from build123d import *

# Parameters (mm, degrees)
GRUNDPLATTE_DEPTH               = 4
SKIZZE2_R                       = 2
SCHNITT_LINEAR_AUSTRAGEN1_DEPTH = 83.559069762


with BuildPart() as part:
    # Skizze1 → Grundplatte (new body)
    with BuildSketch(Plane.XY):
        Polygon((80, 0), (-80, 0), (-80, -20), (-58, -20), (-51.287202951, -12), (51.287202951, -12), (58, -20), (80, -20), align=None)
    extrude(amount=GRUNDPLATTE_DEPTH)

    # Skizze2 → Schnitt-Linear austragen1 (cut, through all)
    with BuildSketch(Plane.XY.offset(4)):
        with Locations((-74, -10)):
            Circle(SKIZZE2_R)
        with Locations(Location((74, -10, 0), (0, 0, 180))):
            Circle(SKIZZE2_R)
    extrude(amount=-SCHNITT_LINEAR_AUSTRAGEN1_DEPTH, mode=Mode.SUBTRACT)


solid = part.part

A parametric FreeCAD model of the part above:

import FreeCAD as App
import Part
import Sketcher
from FreeCAD import Vector
Q = App.Units.Quantity

doc = App.newDocument("Part")
params = doc.addObject("Spreadsheet::Sheet", "Params")
for row, (alias, value) in enumerate([
    ("sketch1_width", "160 mm"),
    ("sketch1_width2", "22 mm"),
    ("sketch1_height", "20 mm"),
    ("pad1_length", "4 mm"),
    ("sketch2_diameter", "4 mm"),
], start=1):
    params.set(f"A{row}", alias)
    params.set(f"B{row}", "=" + value)
    params.setAlias(f"B{row}", alias)

body = doc.addObject("PartDesign::Body", "Body")

# Sketch on XY plane
sketch1 = doc.addObject("Sketcher::SketchObject", "Sketch")
body.addObject(sketch1)
sketch1.AttachmentSupport = (doc.XY_Plane, [""])
sketch1.MapMode = "FlatFace"
sketch1.addGeometry(Part.LineSegment(Vector(80, 0, 0), Vector(-80, 0, 0)), False)
sketch1.addGeometry(Part.LineSegment(Vector(-80, 0, 0), Vector(-80, -20, 0)), False)
sketch1.addGeometry(Part.LineSegment(Vector(-80, -20, 0), Vector(-58, -20, 0)), False)
sketch1.addGeometry(Part.LineSegment(Vector(-58, -20, 0), Vector(-51, -12, 0)), False)
sketch1.addGeometry(Part.LineSegment(Vector(-51, -12, 0), Vector(51, -12, 0)), False)
sketch1.addGeometry(Part.LineSegment(Vector(51, -12, 0), Vector(58, -20, 0)), False)
sketch1.addGeometry(Part.LineSegment(Vector(58, -20, 0), Vector(80, -20, 0)), False)
sketch1.addGeometry(Part.LineSegment(Vector(80, -20, 0), Vector(80, 0, 0)), False)
sketch1.addConstraint(Sketcher.Constraint("Coincident", 0, 2, 1, 1))
sketch1.addConstraint(Sketcher.Constraint("Coincident", 1, 2, 2, 1))
sketch1.addConstraint(Sketcher.Constraint("Coincident", 2, 2, 3, 1))
sketch1.addConstraint(Sketcher.Constraint("Coincident", 3, 2, 4, 1))
sketch1.addConstraint(Sketcher.Constraint("Coincident", 4, 2, 5, 1))
sketch1.addConstraint(Sketcher.Constraint("Coincident", 5, 2, 6, 1))
sketch1.addConstraint(Sketcher.Constraint("Coincident", 6, 2, 7, 1))
sketch1.addConstraint(Sketcher.Constraint("Coincident", 7, 2, 0, 1))
sketch1.addConstraint(Sketcher.Constraint("Horizontal", 0))
sketch1.addConstraint(Sketcher.Constraint("Vertical", 1))
sketch1.addConstraint(Sketcher.Constraint("Horizontal", 2))
sketch1.addConstraint(Sketcher.Constraint("Horizontal", 4))
sketch1.addConstraint(Sketcher.Constraint("Horizontal", 6))
sketch1.addConstraint(Sketcher.Constraint("Vertical", 7))
sketch1.addConstraint(Sketcher.Constraint("Symmetric", 0, 2, 7, 2, -1, 1))
sketch1.addConstraint(Sketcher.Constraint("Symmetric", 2, 2, 5, 2, -2))
sketch1.addConstraint(Sketcher.Constraint("Equal", 3, 5))
sketch1.addConstraint(Sketcher.Constraint("DistanceX", 0, 2, 0, 1, 160.0))
sketch1.addConstraint(Sketcher.Constraint("DistanceX", 2, 1, 2, 2, 22.0))
sketch1.addConstraint(Sketcher.Constraint("DistanceY", 1, 2, 1, 1, 20.0))
sketch1.addConstraint(Sketcher.Constraint("Angle", 3, Q("50 deg")))
sketch1.addConstraint(Sketcher.Constraint("DistanceY", 3, 2, -1, 1, 12.0))
sketch1.setExpression("Constraints[17]", "Params.sketch1_width")
sketch1.setExpression("Constraints[18]", "Params.sketch1_width2")
sketch1.setExpression("Constraints[19]", "Params.sketch1_height")
pad1 = doc.addObject("PartDesign::Pad", "Pad")
body.addObject(pad1)
pad1.Profile = sketch1
pad1.setExpression("Length", "Params.pad1_length")

# Sketch on XY plane
sketch2 = doc.addObject("Sketcher::SketchObject", "Sketch001")
body.addObject(sketch2)
sketch2.AttachmentSupport = (doc.XY_Plane, [""])
sketch2.MapMode = "FlatFace"
sketch2.AttachmentOffset = App.Placement(Vector(0, 0, 4), App.Rotation())
sketch2.addGeometry(Part.Circle(Vector(-74, -10, 0), Vector(0, 0, 1), 2), False)
sketch2.addGeometry(Part.Circle(Vector(74, -10, 0), Vector(0, 0, 1), 2), False)
sketch2.addConstraint(Sketcher.Constraint("Equal", 0, 1))
sketch2.addConstraint(Sketcher.Constraint("Symmetric", 0, 3, 1, 3, -2))
sketch2.addConstraint(Sketcher.Constraint("Diameter", 0, 4.0))
sketch2.addConstraint(Sketcher.Constraint("DistanceX", 0, 3, -1, 1, 74.0))
sketch2.addConstraint(Sketcher.Constraint("DistanceY", 0, 3, -1, 1, 10.0))
sketch2.setExpression("Constraints[2]", "Params.sketch2_diameter")
pocket1 = doc.addObject("PartDesign::Pocket", "Pocket")
body.addObject(pocket1)
pocket1.Profile = sketch2
pocket1.Type = "ThroughAll"

doc.recompute()
